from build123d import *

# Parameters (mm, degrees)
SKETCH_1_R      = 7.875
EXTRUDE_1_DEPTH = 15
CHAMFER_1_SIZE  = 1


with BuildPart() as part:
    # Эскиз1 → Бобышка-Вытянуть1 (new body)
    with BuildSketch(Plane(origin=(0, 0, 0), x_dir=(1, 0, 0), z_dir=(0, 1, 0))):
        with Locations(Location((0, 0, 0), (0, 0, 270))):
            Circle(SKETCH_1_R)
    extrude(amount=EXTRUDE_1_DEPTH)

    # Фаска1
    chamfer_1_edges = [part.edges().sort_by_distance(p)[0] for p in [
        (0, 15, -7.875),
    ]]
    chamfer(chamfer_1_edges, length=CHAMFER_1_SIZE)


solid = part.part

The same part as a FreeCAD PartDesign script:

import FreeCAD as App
import Part
import Sketcher
from FreeCAD import Vector
Q = App.Units.Quantity


def edges_at(feature, points):
    """Names of the edges that pass closest to the given points."""
    edges = feature.Shape.Edges
    near = lambda p: min(range(len(edges)), key=lambda i: edges[i].distToShape(Part.Vertex(*p))[0])
    return sorted({f"Edge{near(p) + 1}" for p in points})

doc = App.newDocument("Part")
body = doc.addObject("PartDesign::Body", "Body")

# Sketch on XZ plane
sketch1 = body.newObject("Sketcher::SketchObject", "Sketch")
sketch1.AttachmentSupport = (doc.getObject("XZ_Plane"), [""])
sketch1.MapMode = "FlatFace"
sketch1.addGeometry(Part.Circle(Vector(0, 0, 0), Vector(0, 0, 1), 7.875), False)
sketch1.addConstraint([
    Sketcher.Constraint("Coincident", 0, 3, -1, 1),
    Sketcher.Constraint("Diameter", 0, Q("15.75 mm")),
])
pad1 = body.newObject("PartDesign::Pad", "Pad")
pad1.Profile = sketch1
pad1.Length = 15
pad1.Reversed = True
doc.recompute()

chamfer = body.newObject("PartDesign::Chamfer", "Chamfer")
chamfer.Base = (pad1, edges_at(pad1, [(0, 15, -7.875)]))
chamfer.Size = 1

doc.recompute()
